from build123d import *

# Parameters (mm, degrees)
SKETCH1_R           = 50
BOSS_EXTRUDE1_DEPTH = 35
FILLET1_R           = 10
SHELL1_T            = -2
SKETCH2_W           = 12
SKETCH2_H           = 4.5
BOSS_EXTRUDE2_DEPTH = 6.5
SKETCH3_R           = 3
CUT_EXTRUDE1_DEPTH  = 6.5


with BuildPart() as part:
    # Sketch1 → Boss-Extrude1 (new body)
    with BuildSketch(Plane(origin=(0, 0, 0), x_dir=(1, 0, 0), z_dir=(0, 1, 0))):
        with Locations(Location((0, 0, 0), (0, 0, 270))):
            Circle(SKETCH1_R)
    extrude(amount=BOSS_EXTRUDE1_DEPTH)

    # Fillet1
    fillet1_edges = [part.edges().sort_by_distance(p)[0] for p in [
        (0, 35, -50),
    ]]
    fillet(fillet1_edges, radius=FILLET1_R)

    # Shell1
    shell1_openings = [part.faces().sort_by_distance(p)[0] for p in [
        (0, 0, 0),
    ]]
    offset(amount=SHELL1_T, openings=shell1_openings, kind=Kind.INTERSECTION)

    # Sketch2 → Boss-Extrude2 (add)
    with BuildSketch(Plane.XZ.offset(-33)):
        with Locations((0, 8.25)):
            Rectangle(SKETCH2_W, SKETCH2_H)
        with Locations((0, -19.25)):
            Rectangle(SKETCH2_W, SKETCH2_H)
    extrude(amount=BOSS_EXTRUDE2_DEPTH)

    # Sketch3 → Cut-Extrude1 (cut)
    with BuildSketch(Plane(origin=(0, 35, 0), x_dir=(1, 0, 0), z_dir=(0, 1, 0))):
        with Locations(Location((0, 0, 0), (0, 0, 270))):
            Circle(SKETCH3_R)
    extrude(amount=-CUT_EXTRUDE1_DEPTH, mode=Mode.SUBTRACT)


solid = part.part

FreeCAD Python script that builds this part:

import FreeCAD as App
import Part
import Sketcher
Q = App.Units.Quantity


def edges_at(feature, points):
    """Names of the edges that pass closest to the given points."""
    edges = feature.Shape.Edges
    near = lambda p: min(range(len(edges)), key=lambda i: edges[i].distToShape(Part.Vertex(*p))[0])
    return sorted({f"Edge{near(p) + 1}" for p in points})


def faces_at(feature, points):
    """Names of the faces that lie closest to the given points."""
    faces = feature.Shape.Faces
    near = lambda p: min(range(len(faces)), key=lambda i: faces[i].distToShape(Part.Vertex(*p))[0])
    return sorted({f"Face{near(p) + 1}" for p in points})


def add_polygon(sketch, points):
    """Adds a closed chain of lines whose ends are joined by coincident constraints."""
    first, n = sketch.GeometryCount, len(points)
    for a, b in zip(points, points[1:] + points[:1]):
        sketch.addGeometry(Part.LineSegment(App.Vector(*a, 0), App.Vector(*b, 0)), False)
    for i in range(n):
        sketch.addConstraint(Sketcher.Constraint("Coincident", first + i, 2, first + (i + 1) % n, 1))

doc = App.newDocument("Part")
body = doc.addObject("PartDesign::Body", "Body")

sketch1 = doc.addObject("Sketcher::SketchObject", "Sketch")
body.addObject(sketch1)
sketch1.AttachmentSupport = (doc.XZ_Plane, [""])
sketch1.MapMode = "FlatFace"
sketch1.addGeometry(Part.Circle(App.Vector(0, 0, 0), App.Vector(0, 0, 1), 50), False)
sketch1.addConstraint([
    Sketcher.Constraint("Coincident", 0, 3, -1, 1),
    Sketcher.Constraint("Diameter", 0, Q("100 mm")),
])
pad1 = doc.addObject("PartDesign::Pad", "Pad")
body.addObject(pad1)
pad1.Profile = sketch1
pad1.Length = 35
pad1.Reversed = True
doc.recompute()

fillet = doc.addObject("PartDesign::Fillet", "Fillet")
body.addObject(fillet)
fillet.Base = (pad1, edges_at(pad1, [(0, 35, -50)]))
fillet.Radius = 10
doc.recompute()

thickness = doc.addObject("PartDesign::Thickness", "Thickness")
body.addObject(thickness)
thickness.Base = (fillet, faces_at(fillet, [(0, 0, 0)]))
thickness.Value = 2
thickness.Reversed = True
thickness.Join = "Intersection"

sketch2 = doc.addObject("Sketcher::SketchObject", "Sketch001")
body.addObject(sketch2)
sketch2.AttachmentSupport = (doc.XZ_Plane, [""])
sketch2.MapMode = "FlatFace"
sketch2.AttachmentOffset = App.Placement(App.Vector(0, 0, -33), App.Rotation())
add_polygon(sketch2, [(-6, 10.5), (-6, 6), (6, 6), (6, 10.5)])
add_polygon(sketch2, [(-6, -17), (-6, -21.5), (6, -21.5), (6, -17)])
sketch2.addConstraint([
    Sketcher.Constraint("Vertical", 0),
    Sketcher.Constraint("Horizontal", 1),
    Sketcher.Constraint("Vertical", 2),
    Sketcher.Constraint("Horizontal", 3),
    Sketcher.Constraint("Vertical", 4),
    Sketcher.Constraint("Horizontal", 5),
    Sketcher.Constraint("Vertical", 6),
    Sketcher.Constraint("Horizontal", 7),
    Sketcher.Constraint("Vertical", 3, 2, 4, 2),
    Sketcher.Constraint("Vertical", 2, 2, 5, 2),
    Sketcher.Constraint("Equal", 2, 4),
    Sketcher.Constraint("DistanceX", 1, 1, 1, 2, Q("12 mm")),
    Sketcher.Constraint("DistanceY", 0, 2, 0, 1, Q("4.5 mm")),
    Sketcher.Constraint("DistanceX", 0, 2, -1, 1, Q("6 mm")),
    Sketcher.Constraint("DistanceY", -1, 1, 0, 2, Q("6 mm")),
    Sketcher.Constraint("DistanceY", 6, 2, -1, 1, Q("17 mm")),
])
pad2 = doc.addObject("PartDesign::Pad", "Pad001")
body.addObject(pad2)
pad2.Profile = sketch2
pad2.Length = 6.5

sketch3 = doc.addObject("Sketcher::SketchObject", "Sketch002")
body.addObject(sketch3)
sketch3.AttachmentSupport = (doc.XZ_Plane, [""])
sketch3.MapMode = "FlatFace"
sketch3.AttachmentOffset = App.Placement(App.Vector(0, 0, -35), App.Rotation())
sketch3.addGeometry(Part.Circle(App.Vector(0, 0, 0), App.Vector(0, 0, 1), 3), False)
sketch3.addConstraint([
    Sketcher.Constraint("Coincident", 0, 3, -1, 1),
    Sketcher.Constraint("Diameter", 0, Q("6 mm")),
])
pocket1 = doc.addObject("PartDesign::Pocket", "Pocket")
body.addObject(pocket1)
pocket1.Profile = sketch3
pocket1.Length = 6.5
pocket1.Reversed = True

doc.recompute()
